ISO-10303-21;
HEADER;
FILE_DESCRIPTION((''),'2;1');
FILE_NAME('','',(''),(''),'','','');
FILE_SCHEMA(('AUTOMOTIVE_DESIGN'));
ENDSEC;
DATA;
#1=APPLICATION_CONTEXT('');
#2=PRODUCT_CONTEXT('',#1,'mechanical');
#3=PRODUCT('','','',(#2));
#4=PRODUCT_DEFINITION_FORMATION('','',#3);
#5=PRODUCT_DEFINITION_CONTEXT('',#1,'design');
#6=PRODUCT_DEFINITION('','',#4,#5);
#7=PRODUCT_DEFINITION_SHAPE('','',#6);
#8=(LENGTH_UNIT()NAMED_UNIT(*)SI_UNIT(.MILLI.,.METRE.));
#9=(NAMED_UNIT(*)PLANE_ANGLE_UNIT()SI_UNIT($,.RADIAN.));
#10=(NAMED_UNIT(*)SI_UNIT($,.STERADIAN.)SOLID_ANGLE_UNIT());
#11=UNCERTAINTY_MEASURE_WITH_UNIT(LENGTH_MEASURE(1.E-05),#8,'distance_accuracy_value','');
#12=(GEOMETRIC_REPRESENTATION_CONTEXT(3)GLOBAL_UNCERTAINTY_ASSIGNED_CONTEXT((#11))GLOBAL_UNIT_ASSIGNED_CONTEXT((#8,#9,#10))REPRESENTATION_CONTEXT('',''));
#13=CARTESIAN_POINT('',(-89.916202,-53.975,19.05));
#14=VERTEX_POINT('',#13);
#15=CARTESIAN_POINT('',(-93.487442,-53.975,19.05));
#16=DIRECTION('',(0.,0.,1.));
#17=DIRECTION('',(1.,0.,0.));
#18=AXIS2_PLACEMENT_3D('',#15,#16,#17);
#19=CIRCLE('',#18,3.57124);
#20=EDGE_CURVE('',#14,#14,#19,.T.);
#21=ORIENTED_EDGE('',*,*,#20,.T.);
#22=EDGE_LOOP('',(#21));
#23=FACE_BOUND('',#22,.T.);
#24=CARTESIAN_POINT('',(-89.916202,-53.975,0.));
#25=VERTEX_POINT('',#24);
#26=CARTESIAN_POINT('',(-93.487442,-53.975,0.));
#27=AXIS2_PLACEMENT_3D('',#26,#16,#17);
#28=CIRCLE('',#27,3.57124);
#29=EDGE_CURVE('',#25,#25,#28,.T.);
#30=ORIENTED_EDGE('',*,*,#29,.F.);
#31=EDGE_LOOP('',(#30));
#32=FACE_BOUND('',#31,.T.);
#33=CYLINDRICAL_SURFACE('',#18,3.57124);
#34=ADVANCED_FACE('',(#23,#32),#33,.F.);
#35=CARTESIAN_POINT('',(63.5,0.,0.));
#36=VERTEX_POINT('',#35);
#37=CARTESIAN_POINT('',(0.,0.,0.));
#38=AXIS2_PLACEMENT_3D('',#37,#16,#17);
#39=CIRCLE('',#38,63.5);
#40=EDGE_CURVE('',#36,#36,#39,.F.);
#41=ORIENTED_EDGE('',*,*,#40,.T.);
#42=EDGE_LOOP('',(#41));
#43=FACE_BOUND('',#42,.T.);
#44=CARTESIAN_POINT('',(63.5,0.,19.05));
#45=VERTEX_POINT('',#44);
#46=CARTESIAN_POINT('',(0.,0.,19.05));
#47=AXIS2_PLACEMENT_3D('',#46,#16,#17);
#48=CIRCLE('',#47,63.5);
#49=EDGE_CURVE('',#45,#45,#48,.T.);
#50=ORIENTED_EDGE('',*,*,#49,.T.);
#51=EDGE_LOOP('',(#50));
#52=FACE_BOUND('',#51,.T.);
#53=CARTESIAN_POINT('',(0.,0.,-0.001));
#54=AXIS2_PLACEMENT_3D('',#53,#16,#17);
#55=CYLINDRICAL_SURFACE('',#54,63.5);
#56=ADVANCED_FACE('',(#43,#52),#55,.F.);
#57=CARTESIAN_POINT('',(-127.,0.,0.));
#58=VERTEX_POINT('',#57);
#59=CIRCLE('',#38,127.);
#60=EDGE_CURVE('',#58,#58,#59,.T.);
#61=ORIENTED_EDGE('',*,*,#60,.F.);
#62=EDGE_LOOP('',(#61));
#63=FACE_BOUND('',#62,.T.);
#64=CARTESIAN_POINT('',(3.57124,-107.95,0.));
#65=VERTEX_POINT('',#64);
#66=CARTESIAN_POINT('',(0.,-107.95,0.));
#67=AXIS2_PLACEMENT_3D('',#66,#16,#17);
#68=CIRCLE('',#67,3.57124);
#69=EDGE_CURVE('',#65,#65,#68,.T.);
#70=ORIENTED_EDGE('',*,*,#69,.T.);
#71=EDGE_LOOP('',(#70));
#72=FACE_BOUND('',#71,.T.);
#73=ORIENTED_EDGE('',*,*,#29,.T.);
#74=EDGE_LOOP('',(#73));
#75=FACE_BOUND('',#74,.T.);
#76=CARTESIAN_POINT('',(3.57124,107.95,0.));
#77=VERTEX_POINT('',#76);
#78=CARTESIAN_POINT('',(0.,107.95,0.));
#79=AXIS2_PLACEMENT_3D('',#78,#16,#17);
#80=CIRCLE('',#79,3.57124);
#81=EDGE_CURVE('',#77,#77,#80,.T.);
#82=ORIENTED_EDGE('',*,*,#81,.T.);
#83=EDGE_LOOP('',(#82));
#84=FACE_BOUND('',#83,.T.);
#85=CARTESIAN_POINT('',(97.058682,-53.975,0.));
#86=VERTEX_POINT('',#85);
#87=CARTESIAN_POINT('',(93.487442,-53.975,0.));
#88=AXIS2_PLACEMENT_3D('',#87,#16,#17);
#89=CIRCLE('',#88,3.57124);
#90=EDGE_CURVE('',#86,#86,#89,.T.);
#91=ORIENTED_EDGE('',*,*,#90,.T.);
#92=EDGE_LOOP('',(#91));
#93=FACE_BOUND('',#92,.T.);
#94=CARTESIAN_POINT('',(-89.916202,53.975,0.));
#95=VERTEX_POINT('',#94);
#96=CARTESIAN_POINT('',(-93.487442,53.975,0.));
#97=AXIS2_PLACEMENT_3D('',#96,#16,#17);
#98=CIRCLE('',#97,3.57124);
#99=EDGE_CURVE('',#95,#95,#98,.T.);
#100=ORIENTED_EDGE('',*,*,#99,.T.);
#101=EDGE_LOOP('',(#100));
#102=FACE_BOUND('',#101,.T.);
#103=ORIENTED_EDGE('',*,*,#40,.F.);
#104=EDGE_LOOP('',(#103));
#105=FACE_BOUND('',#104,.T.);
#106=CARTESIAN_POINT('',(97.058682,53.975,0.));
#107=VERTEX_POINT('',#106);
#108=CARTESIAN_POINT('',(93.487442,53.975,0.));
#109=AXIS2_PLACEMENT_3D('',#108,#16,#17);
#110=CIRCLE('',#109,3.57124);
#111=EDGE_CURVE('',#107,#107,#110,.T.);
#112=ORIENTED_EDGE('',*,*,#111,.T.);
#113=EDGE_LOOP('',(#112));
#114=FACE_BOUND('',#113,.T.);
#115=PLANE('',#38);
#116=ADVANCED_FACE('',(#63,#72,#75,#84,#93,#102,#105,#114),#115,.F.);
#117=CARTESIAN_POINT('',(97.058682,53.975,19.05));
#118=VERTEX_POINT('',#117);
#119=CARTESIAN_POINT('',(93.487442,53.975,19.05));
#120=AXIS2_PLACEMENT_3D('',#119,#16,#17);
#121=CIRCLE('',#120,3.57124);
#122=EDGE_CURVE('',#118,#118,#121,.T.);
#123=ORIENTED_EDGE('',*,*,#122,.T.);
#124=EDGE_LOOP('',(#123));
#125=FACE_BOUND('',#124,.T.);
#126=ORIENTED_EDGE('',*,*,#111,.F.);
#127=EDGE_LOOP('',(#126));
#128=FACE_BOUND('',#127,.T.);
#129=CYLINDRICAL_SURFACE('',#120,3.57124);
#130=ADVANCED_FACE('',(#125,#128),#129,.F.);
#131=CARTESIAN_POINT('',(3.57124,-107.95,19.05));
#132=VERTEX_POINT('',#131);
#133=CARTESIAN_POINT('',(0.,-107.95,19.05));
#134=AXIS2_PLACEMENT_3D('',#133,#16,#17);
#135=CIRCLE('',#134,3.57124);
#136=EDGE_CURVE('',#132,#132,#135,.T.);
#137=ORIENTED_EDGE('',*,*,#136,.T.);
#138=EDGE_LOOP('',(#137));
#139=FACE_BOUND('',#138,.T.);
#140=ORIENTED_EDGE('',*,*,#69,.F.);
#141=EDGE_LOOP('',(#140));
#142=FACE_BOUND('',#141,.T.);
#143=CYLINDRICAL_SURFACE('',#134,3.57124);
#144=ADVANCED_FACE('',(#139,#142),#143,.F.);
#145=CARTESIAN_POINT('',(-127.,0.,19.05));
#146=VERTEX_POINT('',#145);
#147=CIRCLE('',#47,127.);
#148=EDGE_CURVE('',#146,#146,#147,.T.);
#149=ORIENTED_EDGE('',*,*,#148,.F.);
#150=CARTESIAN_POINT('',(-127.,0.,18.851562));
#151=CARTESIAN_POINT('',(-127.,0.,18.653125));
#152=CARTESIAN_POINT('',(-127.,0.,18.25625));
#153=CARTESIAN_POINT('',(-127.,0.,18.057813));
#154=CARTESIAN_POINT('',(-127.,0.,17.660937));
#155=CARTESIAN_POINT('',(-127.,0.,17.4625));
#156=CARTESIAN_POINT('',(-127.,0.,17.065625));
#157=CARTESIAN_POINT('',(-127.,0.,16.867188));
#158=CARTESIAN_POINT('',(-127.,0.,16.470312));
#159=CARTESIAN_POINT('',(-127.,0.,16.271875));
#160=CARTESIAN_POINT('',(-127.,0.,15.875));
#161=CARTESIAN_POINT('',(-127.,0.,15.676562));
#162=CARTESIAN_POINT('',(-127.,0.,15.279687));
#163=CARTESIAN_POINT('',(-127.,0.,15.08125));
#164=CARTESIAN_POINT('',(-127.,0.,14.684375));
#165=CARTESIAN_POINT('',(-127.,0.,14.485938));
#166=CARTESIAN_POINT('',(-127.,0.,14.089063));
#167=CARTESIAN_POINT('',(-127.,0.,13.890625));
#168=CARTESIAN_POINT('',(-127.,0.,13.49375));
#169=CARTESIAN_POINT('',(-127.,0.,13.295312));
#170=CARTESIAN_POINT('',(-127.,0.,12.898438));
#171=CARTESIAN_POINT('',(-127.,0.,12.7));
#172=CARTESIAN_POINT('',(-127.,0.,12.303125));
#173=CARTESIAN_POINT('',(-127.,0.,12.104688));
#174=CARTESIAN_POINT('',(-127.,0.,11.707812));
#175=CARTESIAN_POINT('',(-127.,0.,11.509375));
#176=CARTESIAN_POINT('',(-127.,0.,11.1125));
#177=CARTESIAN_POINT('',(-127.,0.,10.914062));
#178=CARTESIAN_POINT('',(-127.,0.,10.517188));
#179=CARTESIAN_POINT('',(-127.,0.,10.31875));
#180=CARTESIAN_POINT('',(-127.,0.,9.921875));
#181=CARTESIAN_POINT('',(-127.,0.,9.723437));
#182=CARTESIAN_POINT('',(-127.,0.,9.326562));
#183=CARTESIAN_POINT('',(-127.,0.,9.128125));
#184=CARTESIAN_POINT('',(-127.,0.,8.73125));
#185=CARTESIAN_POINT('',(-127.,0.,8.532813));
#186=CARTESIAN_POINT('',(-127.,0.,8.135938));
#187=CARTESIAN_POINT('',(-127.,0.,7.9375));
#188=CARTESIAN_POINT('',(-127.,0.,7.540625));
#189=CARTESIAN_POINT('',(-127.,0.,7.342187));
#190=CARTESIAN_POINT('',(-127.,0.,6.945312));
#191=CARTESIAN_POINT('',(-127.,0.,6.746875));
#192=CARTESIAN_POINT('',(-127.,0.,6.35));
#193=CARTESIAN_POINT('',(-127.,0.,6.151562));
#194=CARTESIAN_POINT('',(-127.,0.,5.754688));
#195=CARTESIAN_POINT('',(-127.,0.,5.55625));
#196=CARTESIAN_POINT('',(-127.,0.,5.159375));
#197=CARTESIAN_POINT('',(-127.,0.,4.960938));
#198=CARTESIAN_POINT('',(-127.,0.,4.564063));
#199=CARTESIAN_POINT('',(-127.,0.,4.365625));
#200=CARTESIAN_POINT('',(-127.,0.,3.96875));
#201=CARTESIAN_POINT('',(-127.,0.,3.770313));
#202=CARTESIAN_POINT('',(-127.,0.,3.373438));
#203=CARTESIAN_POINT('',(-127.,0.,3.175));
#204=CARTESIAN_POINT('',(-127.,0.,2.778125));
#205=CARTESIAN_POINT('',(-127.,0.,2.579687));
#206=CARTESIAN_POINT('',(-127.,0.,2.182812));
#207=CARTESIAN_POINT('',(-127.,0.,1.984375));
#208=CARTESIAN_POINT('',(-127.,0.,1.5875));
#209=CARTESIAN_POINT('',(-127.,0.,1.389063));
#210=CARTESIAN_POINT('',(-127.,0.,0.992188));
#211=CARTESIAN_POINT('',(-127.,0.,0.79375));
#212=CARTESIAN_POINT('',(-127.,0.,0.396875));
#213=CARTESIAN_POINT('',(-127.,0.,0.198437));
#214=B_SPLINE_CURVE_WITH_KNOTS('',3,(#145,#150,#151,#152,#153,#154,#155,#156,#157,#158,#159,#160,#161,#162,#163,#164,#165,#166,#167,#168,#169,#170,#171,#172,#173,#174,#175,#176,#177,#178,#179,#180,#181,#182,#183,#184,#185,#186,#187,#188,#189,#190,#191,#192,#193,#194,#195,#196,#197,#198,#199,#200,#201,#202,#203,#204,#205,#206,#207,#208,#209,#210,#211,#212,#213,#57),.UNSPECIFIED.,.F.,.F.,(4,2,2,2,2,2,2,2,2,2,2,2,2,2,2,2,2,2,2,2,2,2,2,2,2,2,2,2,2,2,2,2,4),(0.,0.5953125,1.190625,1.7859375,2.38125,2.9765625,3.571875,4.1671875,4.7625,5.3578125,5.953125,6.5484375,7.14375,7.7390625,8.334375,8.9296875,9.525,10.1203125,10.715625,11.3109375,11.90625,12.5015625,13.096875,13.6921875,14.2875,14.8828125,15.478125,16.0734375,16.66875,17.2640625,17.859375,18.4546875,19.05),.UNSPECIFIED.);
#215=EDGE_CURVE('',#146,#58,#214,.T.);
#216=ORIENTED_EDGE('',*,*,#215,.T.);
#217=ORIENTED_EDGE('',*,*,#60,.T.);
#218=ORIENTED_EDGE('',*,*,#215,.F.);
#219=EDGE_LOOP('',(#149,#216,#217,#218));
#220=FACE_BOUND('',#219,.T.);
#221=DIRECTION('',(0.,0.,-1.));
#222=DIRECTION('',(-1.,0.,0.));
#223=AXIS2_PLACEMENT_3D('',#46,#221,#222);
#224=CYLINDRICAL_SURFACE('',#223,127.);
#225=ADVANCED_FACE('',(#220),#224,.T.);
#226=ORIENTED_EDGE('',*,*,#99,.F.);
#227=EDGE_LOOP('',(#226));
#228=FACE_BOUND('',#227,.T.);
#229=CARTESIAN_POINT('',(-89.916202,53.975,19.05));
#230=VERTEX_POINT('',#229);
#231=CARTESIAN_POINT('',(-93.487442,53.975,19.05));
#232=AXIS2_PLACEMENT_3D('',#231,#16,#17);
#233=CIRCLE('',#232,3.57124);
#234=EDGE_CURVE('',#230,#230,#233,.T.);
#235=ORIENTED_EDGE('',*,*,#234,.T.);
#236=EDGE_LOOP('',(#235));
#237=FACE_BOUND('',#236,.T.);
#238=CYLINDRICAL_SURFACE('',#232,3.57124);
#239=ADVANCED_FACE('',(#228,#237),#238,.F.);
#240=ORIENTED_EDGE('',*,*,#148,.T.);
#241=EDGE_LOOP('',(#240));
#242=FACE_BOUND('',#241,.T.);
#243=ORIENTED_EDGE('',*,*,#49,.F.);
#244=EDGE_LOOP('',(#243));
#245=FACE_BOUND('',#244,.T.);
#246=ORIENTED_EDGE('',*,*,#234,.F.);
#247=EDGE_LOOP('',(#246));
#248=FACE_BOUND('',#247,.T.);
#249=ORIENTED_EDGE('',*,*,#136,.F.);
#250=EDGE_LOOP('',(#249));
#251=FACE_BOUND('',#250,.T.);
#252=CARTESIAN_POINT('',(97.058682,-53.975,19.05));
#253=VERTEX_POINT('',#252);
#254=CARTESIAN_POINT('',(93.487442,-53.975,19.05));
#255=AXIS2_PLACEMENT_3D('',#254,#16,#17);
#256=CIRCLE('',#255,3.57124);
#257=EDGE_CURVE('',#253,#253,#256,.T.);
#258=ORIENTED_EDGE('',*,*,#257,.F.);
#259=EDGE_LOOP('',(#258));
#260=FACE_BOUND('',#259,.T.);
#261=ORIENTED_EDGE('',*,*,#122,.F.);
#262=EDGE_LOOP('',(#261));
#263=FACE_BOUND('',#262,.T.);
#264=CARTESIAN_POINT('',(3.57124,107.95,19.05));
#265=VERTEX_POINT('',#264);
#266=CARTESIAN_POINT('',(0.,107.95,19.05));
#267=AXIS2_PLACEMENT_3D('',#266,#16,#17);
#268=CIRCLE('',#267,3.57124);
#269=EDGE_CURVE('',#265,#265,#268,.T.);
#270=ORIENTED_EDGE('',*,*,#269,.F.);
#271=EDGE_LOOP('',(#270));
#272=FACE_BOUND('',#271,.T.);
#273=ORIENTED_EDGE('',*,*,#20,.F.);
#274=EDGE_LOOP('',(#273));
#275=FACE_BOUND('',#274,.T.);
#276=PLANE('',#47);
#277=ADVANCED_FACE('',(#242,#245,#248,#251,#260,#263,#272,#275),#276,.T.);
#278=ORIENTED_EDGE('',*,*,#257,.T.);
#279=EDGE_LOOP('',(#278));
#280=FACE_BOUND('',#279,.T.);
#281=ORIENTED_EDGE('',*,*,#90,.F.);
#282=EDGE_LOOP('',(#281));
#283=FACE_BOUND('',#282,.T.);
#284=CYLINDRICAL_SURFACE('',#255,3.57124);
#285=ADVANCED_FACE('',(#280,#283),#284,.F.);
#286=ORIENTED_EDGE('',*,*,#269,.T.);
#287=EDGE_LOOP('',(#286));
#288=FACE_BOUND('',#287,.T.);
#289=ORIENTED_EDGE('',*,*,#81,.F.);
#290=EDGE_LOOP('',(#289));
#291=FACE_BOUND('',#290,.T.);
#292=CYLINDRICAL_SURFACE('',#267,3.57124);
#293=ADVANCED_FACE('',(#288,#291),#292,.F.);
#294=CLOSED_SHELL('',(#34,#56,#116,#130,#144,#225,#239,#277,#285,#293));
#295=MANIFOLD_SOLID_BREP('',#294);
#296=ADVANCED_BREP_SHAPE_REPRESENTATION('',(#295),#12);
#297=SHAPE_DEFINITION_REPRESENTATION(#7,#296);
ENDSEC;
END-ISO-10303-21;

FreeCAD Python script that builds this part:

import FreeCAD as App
import Part
import Sketcher

V = App.Vector
Q = App.Units.Quantity

doc = App.newDocument("Part")
body = doc.addObject("PartDesign::Body", "Body")

sketch1 = body.newObject("Sketcher::SketchObject", "Sketch")
sketch1.AttachmentSupport = (doc.getObject("XY_Plane"), [""])
sketch1.MapMode = "FlatFace"
sketch1.addGeometry(Part.Circle(V(0, 0, 0), V(0, 0, 1), 127), False)
sketch1.addConstraint(Sketcher.Constraint("Coincident", 0, 3, -1, 1))
sketch1.addConstraint(Sketcher.Constraint("Diameter", 0, Q("10 in")))
pad1 = body.newObject("PartDesign::Pad", "Pad")
pad1.Profile = sketch1
pad1.Length = Q("0.75 in")

sketch2 = body.newObject("Sketcher::SketchObject", "Sketch001")
sketch2.AttachmentSupport = (doc.getObject("XY_Plane"), [""])
sketch2.MapMode = "FlatFace"
sketch2.AttachmentOffset = App.Placement(V(0, 0, 0.75 * 25.4), App.Rotation())
sketch2.addGeometry(Part.Circle(V(-93.5, 54, 0), V(0, 0, 1), 3.6), False)
sketch2.addGeometry(Part.Circle(V(0, 108, 0), V(0, 0, 1), 3.6), False)
sketch2.addGeometry(Part.Circle(V(93.5, 54, 0), V(0, 0, 1), 3.6), False)
sketch2.addGeometry(Part.Circle(V(93.5, -54, 0), V(0, 0, 1), 3.6), False)
sketch2.addGeometry(Part.Circle(V(0, -108, 0), V(0, 0, 1), 3.6), False)
sketch2.addGeometry(Part.Circle(V(-93.5, -54, 0), V(0, 0, 1), 3.6), False)
sketch2.addConstraint(Sketcher.Constraint("Equal", 0, 1))
sketch2.addConstraint(Sketcher.Constraint("Equal", 1, 2))
sketch2.addConstraint(Sketcher.Constraint("Equal", 2, 3))
sketch2.addConstraint(Sketcher.Constraint("Equal", 3, 4))
sketch2.addConstraint(Sketcher.Constraint("Equal", 4, 5))
sketch2.addConstraint(Sketcher.Constraint("Symmetric", 0, 3, 3, 3, -1, 1))
sketch2.addConstraint(Sketcher.Constraint("Symmetric", 1, 3, 4, 3, -1, 1))
sketch2.addConstraint(Sketcher.Constraint("Symmetric", 2, 3, 5, 3, -1, 1))
sketch2.addConstraint(Sketcher.Constraint("Symmetric", 0, 3, 2, 3, -2))
sketch2.addConstraint(Sketcher.Constraint("PointOnObject", 1, 3, -2))
sketch2.addConstraint(Sketcher.Constraint("Diameter", 0, Q("0.2812 in")))
sketch2.addConstraint(Sketcher.Constraint("DistanceY", 4, 3, 1, 3, Q("8.5 in")))
sketch2.addConstraint(Sketcher.Constraint("DistanceY", 3, 3, 2, 3, Q("4.25 in")))
sketch2.addConstraint(Sketcher.Constraint("DistanceX", 0, 3, -1, 1, 93.487442))
doc.recompute()
hole = body.newObject("PartDesign::Hole", "Hole")
hole.Profile = sketch2
hole.ThreadType = "None"
hole.Diameter = Q("0.2812 in")
hole.DepthType = "ThroughAll"

sketch3 = body.newObject("Sketcher::SketchObject", "Sketch002")
sketch3.AttachmentSupport = (doc.getObject("XY_Plane"), [""])
sketch3.MapMode = "FlatFace"
sketch3.AttachmentOffset = App.Placement(V(0, 0, 0.75 * 25.4), App.Rotation())
sketch3.addGeometry(Part.Circle(V(0, 0, 0), V(0, 0, 1), 64), False)
sketch3.addConstraint(Sketcher.Constraint("Coincident", 0, 3, -1, 1))
sketch3.addConstraint(Sketcher.Constraint("Diameter", 0, Q("5 in")))
pocket1 = body.newObject("PartDesign::Pocket", "Pocket")
pocket1.Profile = sketch3
pocket1.Type = "UpToFirst"

doc.recompute()
